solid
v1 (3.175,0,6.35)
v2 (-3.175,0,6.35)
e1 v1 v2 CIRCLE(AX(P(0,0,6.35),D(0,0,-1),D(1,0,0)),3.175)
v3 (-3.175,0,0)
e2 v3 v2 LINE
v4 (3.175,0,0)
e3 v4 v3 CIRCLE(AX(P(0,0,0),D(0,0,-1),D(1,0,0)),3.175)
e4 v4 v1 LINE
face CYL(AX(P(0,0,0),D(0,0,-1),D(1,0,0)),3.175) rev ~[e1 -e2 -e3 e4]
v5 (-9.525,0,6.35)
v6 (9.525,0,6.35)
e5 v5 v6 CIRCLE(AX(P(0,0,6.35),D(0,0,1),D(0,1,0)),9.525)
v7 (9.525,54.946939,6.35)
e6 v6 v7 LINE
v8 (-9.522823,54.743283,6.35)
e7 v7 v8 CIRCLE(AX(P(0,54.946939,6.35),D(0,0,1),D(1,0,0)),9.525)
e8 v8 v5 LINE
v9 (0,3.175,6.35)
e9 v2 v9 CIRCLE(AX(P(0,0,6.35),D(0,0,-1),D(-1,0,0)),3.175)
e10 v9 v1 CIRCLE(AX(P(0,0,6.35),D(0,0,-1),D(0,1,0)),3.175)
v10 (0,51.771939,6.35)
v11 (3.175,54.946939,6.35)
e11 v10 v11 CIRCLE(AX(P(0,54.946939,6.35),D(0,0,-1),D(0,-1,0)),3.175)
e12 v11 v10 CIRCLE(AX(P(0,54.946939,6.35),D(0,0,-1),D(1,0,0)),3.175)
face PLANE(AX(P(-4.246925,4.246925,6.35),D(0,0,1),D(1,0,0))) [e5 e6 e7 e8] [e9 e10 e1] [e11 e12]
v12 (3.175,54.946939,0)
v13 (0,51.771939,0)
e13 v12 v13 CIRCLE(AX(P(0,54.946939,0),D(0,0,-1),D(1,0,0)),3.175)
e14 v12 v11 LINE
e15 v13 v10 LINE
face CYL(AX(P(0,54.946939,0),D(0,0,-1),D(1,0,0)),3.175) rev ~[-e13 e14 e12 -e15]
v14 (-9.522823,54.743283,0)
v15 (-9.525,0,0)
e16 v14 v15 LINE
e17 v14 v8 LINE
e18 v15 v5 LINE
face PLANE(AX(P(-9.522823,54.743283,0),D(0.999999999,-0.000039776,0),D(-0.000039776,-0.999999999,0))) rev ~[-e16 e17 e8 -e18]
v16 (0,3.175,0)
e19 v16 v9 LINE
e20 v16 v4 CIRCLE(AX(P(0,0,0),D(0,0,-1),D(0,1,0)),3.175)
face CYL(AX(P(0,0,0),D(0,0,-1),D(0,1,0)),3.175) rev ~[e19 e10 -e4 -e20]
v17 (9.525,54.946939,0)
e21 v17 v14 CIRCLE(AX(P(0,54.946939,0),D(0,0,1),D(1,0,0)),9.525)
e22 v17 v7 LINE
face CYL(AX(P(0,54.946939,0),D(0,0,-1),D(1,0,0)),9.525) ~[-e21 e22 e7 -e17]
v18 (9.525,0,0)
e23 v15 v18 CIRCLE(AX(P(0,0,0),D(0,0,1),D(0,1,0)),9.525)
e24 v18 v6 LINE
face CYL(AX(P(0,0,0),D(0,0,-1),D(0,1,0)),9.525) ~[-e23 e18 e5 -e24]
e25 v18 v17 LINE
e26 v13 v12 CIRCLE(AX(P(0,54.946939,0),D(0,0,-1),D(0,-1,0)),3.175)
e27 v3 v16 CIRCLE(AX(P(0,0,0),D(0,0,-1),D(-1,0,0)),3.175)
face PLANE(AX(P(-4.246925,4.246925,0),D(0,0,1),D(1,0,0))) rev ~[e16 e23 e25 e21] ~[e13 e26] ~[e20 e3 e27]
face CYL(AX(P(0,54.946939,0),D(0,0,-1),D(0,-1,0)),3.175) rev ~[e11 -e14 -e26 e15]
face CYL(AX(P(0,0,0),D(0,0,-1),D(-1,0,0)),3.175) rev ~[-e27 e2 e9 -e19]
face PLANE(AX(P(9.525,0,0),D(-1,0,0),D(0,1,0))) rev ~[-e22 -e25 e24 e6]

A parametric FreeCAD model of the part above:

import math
import FreeCAD as App
import Part
import Sketcher
Q = App.Units.Quantity

doc = App.newDocument("Part")
body = doc.addObject("PartDesign::Body", "Body")

# Sketch on XY plane
sketch1 = doc.addObject("Sketcher::SketchObject", "Sketch")
body.addObject(sketch1)
sketch1.AttachmentSupport = (doc.XY_Plane, [""])
sketch1.MapMode = "FlatFace"
sketch1.addGeometry([
    Part.ArcOfCircle(Part.Circle(App.Vector(0, 0, 0), App.Vector(0, 0, 1), 9.5), math.radians(180), math.radians(360)),  # 0
    Part.LineSegment(App.Vector(9.5, 0, 0), App.Vector(9.5, 54.9, 0)),  # 1
    Part.ArcOfCircle(Part.Circle(App.Vector(0, 54.9, 0), App.Vector(0, 0, 1), 9.5), math.radians(0), math.radians(181)),  # 2
    Part.LineSegment(App.Vector(-9.5, 54.7, 0), App.Vector(-9.5, 0, 0)),  # 3
    Part.ArcOfCircle(Part.Circle(App.Vector(0, 0, 0), App.Vector(0, 0, 1), 3.2), math.radians(90), math.radians(180)),  # 4
    Part.ArcOfCircle(Part.Circle(App.Vector(0, 0, 0), App.Vector(0, 0, 1), 3.2), math.radians(0), math.radians(90)),  # 5
    Part.ArcOfCircle(Part.Circle(App.Vector(0, 0, 0), App.Vector(0, 0, 1), 3.2), math.radians(180), math.radians(360)),  # 6
    Part.ArcOfCircle(Part.Circle(App.Vector(0, 54.9, 0), App.Vector(0, 0, 1), 3.2), math.radians(0), math.radians(270)),  # 7
    Part.ArcOfCircle(Part.Circle(App.Vector(0, 54.9, 0), App.Vector(0, 0, 1), 3.2), math.radians(-90), math.radians(0)),  # 8
], False)
sketch1.addConstraint([
    Sketcher.Constraint("Tangent", 0, 2, 1, 1),
    Sketcher.Constraint("Tangent", 1, 2, 2, 1),
    Sketcher.Constraint("Coincident", 2, 2, 3, 1),
    Sketcher.Constraint("Coincident", 3, 2, 0, 1),
    Sketcher.Constraint("Tangent", 4, 1, 5, 2),
    Sketcher.Constraint("Tangent", 5, 1, 6, 2),
    Sketcher.Constraint("Tangent", 6, 1, 4, 2),
    Sketcher.Constraint("Tangent", 7, 1, 8, 2),
    Sketcher.Constraint("Coincident", 8, 1, 7, 2),
    Sketcher.Constraint("Vertical", 1),
    Sketcher.Constraint("Coincident", 0, 3, -1, 1),
    Sketcher.Constraint("Coincident", 4, 3, -1, 1),
    Sketcher.Constraint("Coincident", 7, 3, 2, 3),
    Sketcher.Constraint("Equal", 0, 2),
    Sketcher.Constraint("Equal", 6, 7),
    Sketcher.Constraint("PointOnObject", 3, 2, -1),
    Sketcher.Constraint("PointOnObject", 4, 1, -2),
    Sketcher.Constraint("PointOnObject", 5, 1, -1),
    Sketcher.Constraint("PointOnObject", 6, 1, -1),
    Sketcher.Constraint("PointOnObject", 8, 1, -2),
    Sketcher.Constraint("Horizontal", 1, 2, 7, 1),
    Sketcher.Constraint("Radius", 0, Q("0.375 in")),
    Sketcher.Constraint("Radius", 4, Q("0.125 in")),
    Sketcher.Constraint("DistanceY", 1, 1, 1, 2, Q("54.946939 mm")),
    Sketcher.Constraint("Distance", 3, Q("54.743283 mm")),
])
pad1 = doc.addObject("PartDesign::Pad", "Pad")
body.addObject(pad1)
pad1.Profile = sketch1
pad1.Length = Q("0.25 in")

doc.recompute()
